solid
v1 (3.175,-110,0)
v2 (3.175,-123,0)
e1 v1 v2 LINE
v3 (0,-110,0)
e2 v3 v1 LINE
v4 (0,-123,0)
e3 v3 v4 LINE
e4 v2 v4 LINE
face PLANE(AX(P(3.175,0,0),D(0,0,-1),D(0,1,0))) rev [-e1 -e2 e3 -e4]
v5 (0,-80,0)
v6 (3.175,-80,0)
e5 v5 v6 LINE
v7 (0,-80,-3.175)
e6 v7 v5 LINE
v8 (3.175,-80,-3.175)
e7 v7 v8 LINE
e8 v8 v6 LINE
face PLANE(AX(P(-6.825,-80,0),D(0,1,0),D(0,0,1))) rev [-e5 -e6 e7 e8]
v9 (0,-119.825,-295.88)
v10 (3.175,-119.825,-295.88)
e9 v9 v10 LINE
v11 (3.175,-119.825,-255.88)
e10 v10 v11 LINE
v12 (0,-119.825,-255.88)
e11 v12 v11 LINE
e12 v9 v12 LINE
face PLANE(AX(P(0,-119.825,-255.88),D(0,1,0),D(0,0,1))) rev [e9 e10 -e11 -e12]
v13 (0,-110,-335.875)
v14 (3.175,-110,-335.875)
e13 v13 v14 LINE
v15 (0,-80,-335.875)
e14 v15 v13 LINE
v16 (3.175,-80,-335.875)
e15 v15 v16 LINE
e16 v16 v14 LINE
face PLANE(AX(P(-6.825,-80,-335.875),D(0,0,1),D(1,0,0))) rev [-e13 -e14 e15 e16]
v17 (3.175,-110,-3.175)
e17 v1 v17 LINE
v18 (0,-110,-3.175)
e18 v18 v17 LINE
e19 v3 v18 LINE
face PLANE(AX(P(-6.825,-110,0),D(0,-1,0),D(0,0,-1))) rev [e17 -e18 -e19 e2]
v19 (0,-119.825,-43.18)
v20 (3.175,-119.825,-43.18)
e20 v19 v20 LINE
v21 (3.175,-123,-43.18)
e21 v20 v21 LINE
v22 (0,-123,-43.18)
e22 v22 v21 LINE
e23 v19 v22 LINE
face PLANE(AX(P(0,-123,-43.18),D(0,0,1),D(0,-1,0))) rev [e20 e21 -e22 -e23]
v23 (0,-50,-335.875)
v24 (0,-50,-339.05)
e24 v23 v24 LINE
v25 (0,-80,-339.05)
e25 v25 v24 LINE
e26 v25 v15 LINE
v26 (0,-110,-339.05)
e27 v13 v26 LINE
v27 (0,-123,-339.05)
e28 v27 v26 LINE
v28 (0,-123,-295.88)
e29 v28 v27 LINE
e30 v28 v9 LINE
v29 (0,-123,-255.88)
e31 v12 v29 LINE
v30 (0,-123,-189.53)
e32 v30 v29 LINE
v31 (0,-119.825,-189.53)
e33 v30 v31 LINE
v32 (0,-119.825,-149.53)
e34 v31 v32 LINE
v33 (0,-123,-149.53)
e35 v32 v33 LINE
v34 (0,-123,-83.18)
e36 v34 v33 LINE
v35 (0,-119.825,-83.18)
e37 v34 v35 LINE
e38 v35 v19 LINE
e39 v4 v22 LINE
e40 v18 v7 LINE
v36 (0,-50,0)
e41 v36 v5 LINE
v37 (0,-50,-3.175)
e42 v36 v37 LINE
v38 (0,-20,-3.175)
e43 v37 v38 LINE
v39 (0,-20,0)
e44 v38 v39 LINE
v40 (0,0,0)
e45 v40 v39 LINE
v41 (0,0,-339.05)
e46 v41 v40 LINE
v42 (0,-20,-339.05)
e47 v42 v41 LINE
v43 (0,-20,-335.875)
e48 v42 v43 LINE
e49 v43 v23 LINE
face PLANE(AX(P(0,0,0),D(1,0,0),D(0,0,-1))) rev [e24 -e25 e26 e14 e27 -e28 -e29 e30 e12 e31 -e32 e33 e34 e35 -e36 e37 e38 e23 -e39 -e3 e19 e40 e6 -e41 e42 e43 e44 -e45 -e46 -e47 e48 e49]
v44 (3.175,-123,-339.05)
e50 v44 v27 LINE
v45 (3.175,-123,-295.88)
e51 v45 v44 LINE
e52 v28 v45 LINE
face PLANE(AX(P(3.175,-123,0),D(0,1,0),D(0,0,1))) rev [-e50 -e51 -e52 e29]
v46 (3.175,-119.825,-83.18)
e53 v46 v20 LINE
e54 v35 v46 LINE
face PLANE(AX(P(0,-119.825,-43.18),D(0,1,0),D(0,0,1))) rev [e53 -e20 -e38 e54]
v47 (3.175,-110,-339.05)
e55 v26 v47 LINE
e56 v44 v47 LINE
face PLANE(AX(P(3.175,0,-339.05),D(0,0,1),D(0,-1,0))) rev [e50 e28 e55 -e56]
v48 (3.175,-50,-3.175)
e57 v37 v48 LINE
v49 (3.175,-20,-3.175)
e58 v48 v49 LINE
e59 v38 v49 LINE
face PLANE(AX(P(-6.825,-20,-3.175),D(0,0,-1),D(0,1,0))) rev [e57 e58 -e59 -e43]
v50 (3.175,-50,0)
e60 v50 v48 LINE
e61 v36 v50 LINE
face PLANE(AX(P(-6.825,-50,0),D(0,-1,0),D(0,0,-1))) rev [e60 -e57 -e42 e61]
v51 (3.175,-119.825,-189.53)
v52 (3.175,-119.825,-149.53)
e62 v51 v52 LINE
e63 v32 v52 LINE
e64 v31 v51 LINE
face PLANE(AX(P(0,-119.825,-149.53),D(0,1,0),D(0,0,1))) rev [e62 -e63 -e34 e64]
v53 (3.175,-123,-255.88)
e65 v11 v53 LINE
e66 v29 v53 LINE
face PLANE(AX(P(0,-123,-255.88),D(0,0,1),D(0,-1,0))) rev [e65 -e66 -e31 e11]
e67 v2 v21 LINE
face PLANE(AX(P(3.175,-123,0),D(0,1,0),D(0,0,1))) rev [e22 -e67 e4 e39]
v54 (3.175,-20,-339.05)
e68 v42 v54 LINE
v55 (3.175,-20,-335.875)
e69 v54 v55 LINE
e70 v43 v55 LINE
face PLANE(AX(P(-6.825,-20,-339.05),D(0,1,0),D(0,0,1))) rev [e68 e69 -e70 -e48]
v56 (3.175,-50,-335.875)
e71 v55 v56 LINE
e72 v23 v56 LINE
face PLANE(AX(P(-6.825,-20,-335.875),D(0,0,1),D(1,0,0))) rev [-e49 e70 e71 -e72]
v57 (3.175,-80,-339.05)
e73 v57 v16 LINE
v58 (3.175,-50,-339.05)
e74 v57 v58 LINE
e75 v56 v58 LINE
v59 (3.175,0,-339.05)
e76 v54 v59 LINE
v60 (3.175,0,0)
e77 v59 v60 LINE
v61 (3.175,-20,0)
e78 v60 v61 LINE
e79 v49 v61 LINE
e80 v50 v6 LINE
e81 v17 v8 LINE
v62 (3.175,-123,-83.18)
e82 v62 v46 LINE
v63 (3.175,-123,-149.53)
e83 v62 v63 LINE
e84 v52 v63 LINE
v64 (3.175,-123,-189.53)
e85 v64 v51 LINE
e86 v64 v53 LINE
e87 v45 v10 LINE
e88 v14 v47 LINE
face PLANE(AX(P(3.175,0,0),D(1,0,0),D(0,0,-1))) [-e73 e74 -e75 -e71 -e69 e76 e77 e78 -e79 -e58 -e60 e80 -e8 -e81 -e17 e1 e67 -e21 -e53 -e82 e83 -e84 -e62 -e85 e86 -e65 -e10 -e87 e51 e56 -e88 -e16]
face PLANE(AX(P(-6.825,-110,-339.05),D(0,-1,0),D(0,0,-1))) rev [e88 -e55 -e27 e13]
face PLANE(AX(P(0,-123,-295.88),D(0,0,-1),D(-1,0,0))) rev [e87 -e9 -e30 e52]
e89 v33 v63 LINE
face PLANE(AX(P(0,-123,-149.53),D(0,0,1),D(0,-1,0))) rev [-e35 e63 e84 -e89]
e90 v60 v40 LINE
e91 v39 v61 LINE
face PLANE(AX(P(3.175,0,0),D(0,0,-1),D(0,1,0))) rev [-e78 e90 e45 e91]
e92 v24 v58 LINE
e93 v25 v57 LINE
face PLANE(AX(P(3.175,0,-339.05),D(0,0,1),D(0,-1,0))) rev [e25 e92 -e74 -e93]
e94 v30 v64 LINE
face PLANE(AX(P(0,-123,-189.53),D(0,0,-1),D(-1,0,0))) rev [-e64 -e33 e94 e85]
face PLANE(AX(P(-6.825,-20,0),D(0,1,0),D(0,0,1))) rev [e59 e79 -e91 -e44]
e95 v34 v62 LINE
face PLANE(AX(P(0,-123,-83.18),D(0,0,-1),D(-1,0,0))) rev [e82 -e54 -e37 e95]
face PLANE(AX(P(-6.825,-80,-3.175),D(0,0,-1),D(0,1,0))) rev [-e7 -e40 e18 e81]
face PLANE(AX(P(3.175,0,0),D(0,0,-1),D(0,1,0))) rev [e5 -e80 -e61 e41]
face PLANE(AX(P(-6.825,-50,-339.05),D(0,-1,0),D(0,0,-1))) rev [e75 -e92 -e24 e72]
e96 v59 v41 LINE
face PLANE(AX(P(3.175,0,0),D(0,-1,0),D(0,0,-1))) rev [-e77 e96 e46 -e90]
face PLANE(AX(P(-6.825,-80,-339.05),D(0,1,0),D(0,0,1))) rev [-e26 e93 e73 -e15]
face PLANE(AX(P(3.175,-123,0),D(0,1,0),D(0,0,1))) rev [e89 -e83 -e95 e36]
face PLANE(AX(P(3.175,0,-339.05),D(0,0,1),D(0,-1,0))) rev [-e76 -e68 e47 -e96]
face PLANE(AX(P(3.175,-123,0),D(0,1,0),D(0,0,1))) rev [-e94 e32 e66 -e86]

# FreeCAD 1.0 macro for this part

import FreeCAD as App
import Part
import Sketcher
from FreeCAD import Vector
Q = App.Units.Quantity

doc = App.newDocument("Part")
params = doc.addObject("Spreadsheet::Sheet", "Params")
for row, (alias, value) in enumerate([
    ("sketch1_width", "123 mm"),
    ("sketch1_height", "339.05 mm"),
    ("pad1_length", "3.175 mm"),
    ("sketch2_width", "30 mm"),
    ("pocket1_length", "10 mm"),
    ("sketch3_height", "40 mm"),
    ("linearpattern_pitch", "106.35 mm"),
], start=1):
    params.set(f"A{row}", alias)
    params.set(f"B{row}", "=" + value)
    params.setAlias(f"B{row}", alias)

body = doc.addObject("PartDesign::Body", "Body")

# Sketch on YZ plane
sketch1 = doc.addObject("Sketcher::SketchObject", "Sketch")
body.addObject(sketch1)
sketch1.AttachmentSupport = (doc.YZ_Plane, [""])
sketch1.MapMode = "FlatFace"
sketch1.addGeometry([
    Part.LineSegment(Vector(0, 0, 0), Vector(-123, 0, 0)),
    Part.LineSegment(Vector(-123, 0, 0), Vector(-123, -339.05, 0)),
    Part.LineSegment(Vector(-123, -339.05, 0), Vector(0, -339.05, 0)),
    Part.LineSegment(Vector(0, -339.05, 0), Vector(0, 0, 0)),
], False)
sketch1.addConstraint([
    Sketcher.Constraint("Coincident", 0, 2, 1, 1),
    Sketcher.Constraint("Coincident", 1, 2, 2, 1),
    Sketcher.Constraint("Coincident", 2, 2, 3, 1),
    Sketcher.Constraint("Coincident", 3, 2, 0, 1),
    Sketcher.Constraint("Horizontal", 0),
    Sketcher.Constraint("Vertical", 1),
    Sketcher.Constraint("Horizontal", 2),
    Sketcher.Constraint("Vertical", 3),
    Sketcher.Constraint("Coincident", 3, 2, -1, 1),
    Sketcher.Constraint("DistanceX", 0, 2, 0, 1, Q("123 mm")),
    Sketcher.Constraint("DistanceY", 1, 2, 1, 1, Q("339.05 mm")),
])
sketch1.setExpression("Constraints[9]", "Params.sketch1_width")
sketch1.setExpression("Constraints[10]", "Params.sketch1_height")
pad1 = doc.addObject("PartDesign::Pad", "Pad")
body.addObject(pad1)
pad1.Profile = sketch1
pad1.setExpression("Length", "Params.pad1_length")

# Sketch on YZ plane
sketch2 = doc.addObject("Sketcher::SketchObject", "Sketch001")
body.addObject(sketch2)
sketch2.AttachmentSupport = (doc.YZ_Plane, [""])
sketch2.MapMode = "FlatFace"
sketch2.AttachmentOffset = App.Placement(Vector(0, 0, 3.175), App.Rotation())
sketch2.addGeometry([
    Part.LineSegment(Vector(-20, -335.875, 0), Vector(-50, -335.875, 0)),  # 0
    Part.LineSegment(Vector(-50, -335.875, 0), Vector(-50, -339.05, 0)),  # 1
    Part.LineSegment(Vector(-50, -339.05, 0), Vector(-20, -339.05, 0)),  # 2
    Part.LineSegment(Vector(-20, -339.05, 0), Vector(-20, -335.875, 0)),  # 3
    Part.LineSegment(Vector(-80, -335.875, 0), Vector(-110, -335.875, 0)),  # 4
    Part.LineSegment(Vector(-110, -335.875, 0), Vector(-110, -339.05, 0)),  # 5
    Part.LineSegment(Vector(-110, -339.05, 0), Vector(-80, -339.05, 0)),  # 6
    Part.LineSegment(Vector(-80, -339.05, 0), Vector(-80, -335.875, 0)),  # 7
    Part.LineSegment(Vector(-20, 0, 0), Vector(-50, 0, 0)),  # 8
    Part.LineSegment(Vector(-50, 0, 0), Vector(-50, -3.175, 0)),  # 9
    Part.LineSegment(Vector(-50, -3.175, 0), Vector(-20, -3.175, 0)),  # 10
    Part.LineSegment(Vector(-20, -3.175, 0), Vector(-20, 0, 0)),  # 11
    Part.LineSegment(Vector(-80, 0, 0), Vector(-110, 0, 0)),  # 12
    Part.LineSegment(Vector(-110, 0, 0), Vector(-110, -3.175, 0)),  # 13
    Part.LineSegment(Vector(-110, -3.175, 0), Vector(-80, -3.175, 0)),  # 14
    Part.LineSegment(Vector(-80, -3.175, 0), Vector(-80, 0, 0)),  # 15
], False)
sketch2.addConstraint([
    Sketcher.Constraint("Coincident", 0, 2, 1, 1),
    Sketcher.Constraint("Coincident", 1, 2, 2, 1),
    Sketcher.Constraint("Coincident", 2, 2, 3, 1),
    Sketcher.Constraint("Coincident", 3, 2, 0, 1),
    Sketcher.Constraint("Coincident", 4, 2, 5, 1),
    Sketcher.Constraint("Coincident", 5, 2, 6, 1),
    Sketcher.Constraint("Coincident", 6, 2, 7, 1),
    Sketcher.Constraint("Coincident", 7, 2, 4, 1),
    Sketcher.Constraint("Coincident", 8, 2, 9, 1),
    Sketcher.Constraint("Coincident", 9, 2, 10, 1),
    Sketcher.Constraint("Coincident", 10, 2, 11, 1),
    Sketcher.Constraint("Coincident", 11, 2, 8, 1),
    Sketcher.Constraint("Coincident", 12, 2, 13, 1),
    Sketcher.Constraint("Coincident", 13, 2, 14, 1),
    Sketcher.Constraint("Coincident", 14, 2, 15, 1),
    Sketcher.Constraint("Coincident", 15, 2, 12, 1),
    Sketcher.Constraint("Horizontal", 0),
    Sketcher.Constraint("Vertical", 1),
    Sketcher.Constraint("Horizontal", 2),
    Sketcher.Constraint("Vertical", 3),
    Sketcher.Constraint("Horizontal", 4),
    Sketcher.Constraint("Vertical", 5),
    Sketcher.Constraint("Horizontal", 6),
    Sketcher.Constraint("Vertical", 7),
    Sketcher.Constraint("Horizontal", 8),
    Sketcher.Constraint("Vertical", 9),
    Sketcher.Constraint("Horizontal", 10),
    Sketcher.Constraint("Vertical", 11),
    Sketcher.Constraint("Horizontal", 12),
    Sketcher.Constraint("Vertical", 13),
    Sketcher.Constraint("Horizontal", 14),
    Sketcher.Constraint("Vertical", 15),
    Sketcher.Constraint("PointOnObject", 8, 2, -1),
    Sketcher.Constraint("PointOnObject", 12, 2, -1),
    Sketcher.Constraint("Horizontal", 3, 2, 4, 2),
    Sketcher.Constraint("Horizontal", 2, 2, 5, 2),
    Sketcher.Constraint("Horizontal", 10, 2, 13, 2),
    Sketcher.Constraint("Vertical", 1, 2, 8, 2),
    Sketcher.Constraint("Vertical", 3, 2, 10, 2),
    Sketcher.Constraint("Vertical", 5, 2, 12, 2),
    Sketcher.Constraint("Vertical", 7, 2, 14, 2),
    Sketcher.Constraint("Equal", 2, 4),
    Sketcher.Constraint("Equal", 7, 9),
    Sketcher.Constraint("DistanceX", 0, 2, 0, 1, Q("30 mm")),
    Sketcher.Constraint("DistanceX", 0, 2, -1, 1, Q("50 mm")),
    Sketcher.Constraint("DistanceX", 4, 2, -1, 1, Q("110 mm")),
    Sketcher.Constraint("DistanceY", 0, 2, 9, 2, Q("332.7 mm")),
    Sketcher.Constraint("DistanceY", 1, 2, 1, 1, Q("3.175 mm")),
])
sketch2.setExpression("Constraints[43]", "Params.sketch2_width")
pocket1 = doc.addObject("PartDesign::Pocket", "Pocket")
body.addObject(pocket1)
pocket1.Profile = sketch2
pocket1.setExpression("Length", "Params.pocket1_length")

# Sketch on YZ plane
sketch3 = doc.addObject("Sketcher::SketchObject", "Sketch002")
body.addObject(sketch3)
sketch3.AttachmentSupport = (doc.YZ_Plane, [""])
sketch3.MapMode = "FlatFace"
sketch3.AttachmentOffset = App.Placement(Vector(0, 0, 3.175), App.Rotation())
sketch3.addGeometry([
    Part.LineSegment(Vector(-119.825, -43.18, 0), Vector(-123, -43.18, 0)),
    Part.LineSegment(Vector(-123, -43.18, 0), Vector(-123, -83.18, 0)),
    Part.LineSegment(Vector(-123, -83.18, 0), Vector(-119.825, -83.18, 0)),
    Part.LineSegment(Vector(-119.825, -83.18, 0), Vector(-119.825, -43.18, 0)),
], False)
sketch3.addConstraint([
    Sketcher.Constraint("Coincident", 0, 2, 1, 1),
    Sketcher.Constraint("Coincident", 1, 2, 2, 1),
    Sketcher.Constraint("Coincident", 2, 2, 3, 1),
    Sketcher.Constraint("Coincident", 3, 2, 0, 1),
    Sketcher.Constraint("Horizontal", 0),
    Sketcher.Constraint("Vertical", 1),
    Sketcher.Constraint("Horizontal", 2),
    Sketcher.Constraint("Vertical", 3),
    Sketcher.Constraint("DistanceY", 1, 2, 1, 1, Q("40 mm")),
    Sketcher.Constraint("DistanceX", 0, 2, -1, 1, Q("123 mm")),
    Sketcher.Constraint("DistanceX", 0, 2, 0, 1, Q("3.175 mm")),
    Sketcher.Constraint("DistanceY", 0, 2, -1, 1, Q("43.18 mm")),
])
sketch3.setExpression("Constraints[8]", "Params.sketch3_height")
pocket2 = doc.addObject("PartDesign::Pocket", "Pocket001")
body.addObject(pocket2)
pocket2.Profile = sketch3
pocket2.Type = "ThroughAll"
doc.recompute()

linearpattern = doc.addObject("PartDesign::LinearPattern", "LinearPattern")
body.addObject(linearpattern)
linearpattern.Originals = [pocket2]
linearpattern.Direction = (doc.Z_Axis, [""])
linearpattern.Mode = "offset"
linearpattern.setExpression("Offset", "Params.linearpattern_pitch")
linearpattern.Occurrences = 3
linearpattern.Reversed = True
body.Tip = linearpattern

doc.recompute()
